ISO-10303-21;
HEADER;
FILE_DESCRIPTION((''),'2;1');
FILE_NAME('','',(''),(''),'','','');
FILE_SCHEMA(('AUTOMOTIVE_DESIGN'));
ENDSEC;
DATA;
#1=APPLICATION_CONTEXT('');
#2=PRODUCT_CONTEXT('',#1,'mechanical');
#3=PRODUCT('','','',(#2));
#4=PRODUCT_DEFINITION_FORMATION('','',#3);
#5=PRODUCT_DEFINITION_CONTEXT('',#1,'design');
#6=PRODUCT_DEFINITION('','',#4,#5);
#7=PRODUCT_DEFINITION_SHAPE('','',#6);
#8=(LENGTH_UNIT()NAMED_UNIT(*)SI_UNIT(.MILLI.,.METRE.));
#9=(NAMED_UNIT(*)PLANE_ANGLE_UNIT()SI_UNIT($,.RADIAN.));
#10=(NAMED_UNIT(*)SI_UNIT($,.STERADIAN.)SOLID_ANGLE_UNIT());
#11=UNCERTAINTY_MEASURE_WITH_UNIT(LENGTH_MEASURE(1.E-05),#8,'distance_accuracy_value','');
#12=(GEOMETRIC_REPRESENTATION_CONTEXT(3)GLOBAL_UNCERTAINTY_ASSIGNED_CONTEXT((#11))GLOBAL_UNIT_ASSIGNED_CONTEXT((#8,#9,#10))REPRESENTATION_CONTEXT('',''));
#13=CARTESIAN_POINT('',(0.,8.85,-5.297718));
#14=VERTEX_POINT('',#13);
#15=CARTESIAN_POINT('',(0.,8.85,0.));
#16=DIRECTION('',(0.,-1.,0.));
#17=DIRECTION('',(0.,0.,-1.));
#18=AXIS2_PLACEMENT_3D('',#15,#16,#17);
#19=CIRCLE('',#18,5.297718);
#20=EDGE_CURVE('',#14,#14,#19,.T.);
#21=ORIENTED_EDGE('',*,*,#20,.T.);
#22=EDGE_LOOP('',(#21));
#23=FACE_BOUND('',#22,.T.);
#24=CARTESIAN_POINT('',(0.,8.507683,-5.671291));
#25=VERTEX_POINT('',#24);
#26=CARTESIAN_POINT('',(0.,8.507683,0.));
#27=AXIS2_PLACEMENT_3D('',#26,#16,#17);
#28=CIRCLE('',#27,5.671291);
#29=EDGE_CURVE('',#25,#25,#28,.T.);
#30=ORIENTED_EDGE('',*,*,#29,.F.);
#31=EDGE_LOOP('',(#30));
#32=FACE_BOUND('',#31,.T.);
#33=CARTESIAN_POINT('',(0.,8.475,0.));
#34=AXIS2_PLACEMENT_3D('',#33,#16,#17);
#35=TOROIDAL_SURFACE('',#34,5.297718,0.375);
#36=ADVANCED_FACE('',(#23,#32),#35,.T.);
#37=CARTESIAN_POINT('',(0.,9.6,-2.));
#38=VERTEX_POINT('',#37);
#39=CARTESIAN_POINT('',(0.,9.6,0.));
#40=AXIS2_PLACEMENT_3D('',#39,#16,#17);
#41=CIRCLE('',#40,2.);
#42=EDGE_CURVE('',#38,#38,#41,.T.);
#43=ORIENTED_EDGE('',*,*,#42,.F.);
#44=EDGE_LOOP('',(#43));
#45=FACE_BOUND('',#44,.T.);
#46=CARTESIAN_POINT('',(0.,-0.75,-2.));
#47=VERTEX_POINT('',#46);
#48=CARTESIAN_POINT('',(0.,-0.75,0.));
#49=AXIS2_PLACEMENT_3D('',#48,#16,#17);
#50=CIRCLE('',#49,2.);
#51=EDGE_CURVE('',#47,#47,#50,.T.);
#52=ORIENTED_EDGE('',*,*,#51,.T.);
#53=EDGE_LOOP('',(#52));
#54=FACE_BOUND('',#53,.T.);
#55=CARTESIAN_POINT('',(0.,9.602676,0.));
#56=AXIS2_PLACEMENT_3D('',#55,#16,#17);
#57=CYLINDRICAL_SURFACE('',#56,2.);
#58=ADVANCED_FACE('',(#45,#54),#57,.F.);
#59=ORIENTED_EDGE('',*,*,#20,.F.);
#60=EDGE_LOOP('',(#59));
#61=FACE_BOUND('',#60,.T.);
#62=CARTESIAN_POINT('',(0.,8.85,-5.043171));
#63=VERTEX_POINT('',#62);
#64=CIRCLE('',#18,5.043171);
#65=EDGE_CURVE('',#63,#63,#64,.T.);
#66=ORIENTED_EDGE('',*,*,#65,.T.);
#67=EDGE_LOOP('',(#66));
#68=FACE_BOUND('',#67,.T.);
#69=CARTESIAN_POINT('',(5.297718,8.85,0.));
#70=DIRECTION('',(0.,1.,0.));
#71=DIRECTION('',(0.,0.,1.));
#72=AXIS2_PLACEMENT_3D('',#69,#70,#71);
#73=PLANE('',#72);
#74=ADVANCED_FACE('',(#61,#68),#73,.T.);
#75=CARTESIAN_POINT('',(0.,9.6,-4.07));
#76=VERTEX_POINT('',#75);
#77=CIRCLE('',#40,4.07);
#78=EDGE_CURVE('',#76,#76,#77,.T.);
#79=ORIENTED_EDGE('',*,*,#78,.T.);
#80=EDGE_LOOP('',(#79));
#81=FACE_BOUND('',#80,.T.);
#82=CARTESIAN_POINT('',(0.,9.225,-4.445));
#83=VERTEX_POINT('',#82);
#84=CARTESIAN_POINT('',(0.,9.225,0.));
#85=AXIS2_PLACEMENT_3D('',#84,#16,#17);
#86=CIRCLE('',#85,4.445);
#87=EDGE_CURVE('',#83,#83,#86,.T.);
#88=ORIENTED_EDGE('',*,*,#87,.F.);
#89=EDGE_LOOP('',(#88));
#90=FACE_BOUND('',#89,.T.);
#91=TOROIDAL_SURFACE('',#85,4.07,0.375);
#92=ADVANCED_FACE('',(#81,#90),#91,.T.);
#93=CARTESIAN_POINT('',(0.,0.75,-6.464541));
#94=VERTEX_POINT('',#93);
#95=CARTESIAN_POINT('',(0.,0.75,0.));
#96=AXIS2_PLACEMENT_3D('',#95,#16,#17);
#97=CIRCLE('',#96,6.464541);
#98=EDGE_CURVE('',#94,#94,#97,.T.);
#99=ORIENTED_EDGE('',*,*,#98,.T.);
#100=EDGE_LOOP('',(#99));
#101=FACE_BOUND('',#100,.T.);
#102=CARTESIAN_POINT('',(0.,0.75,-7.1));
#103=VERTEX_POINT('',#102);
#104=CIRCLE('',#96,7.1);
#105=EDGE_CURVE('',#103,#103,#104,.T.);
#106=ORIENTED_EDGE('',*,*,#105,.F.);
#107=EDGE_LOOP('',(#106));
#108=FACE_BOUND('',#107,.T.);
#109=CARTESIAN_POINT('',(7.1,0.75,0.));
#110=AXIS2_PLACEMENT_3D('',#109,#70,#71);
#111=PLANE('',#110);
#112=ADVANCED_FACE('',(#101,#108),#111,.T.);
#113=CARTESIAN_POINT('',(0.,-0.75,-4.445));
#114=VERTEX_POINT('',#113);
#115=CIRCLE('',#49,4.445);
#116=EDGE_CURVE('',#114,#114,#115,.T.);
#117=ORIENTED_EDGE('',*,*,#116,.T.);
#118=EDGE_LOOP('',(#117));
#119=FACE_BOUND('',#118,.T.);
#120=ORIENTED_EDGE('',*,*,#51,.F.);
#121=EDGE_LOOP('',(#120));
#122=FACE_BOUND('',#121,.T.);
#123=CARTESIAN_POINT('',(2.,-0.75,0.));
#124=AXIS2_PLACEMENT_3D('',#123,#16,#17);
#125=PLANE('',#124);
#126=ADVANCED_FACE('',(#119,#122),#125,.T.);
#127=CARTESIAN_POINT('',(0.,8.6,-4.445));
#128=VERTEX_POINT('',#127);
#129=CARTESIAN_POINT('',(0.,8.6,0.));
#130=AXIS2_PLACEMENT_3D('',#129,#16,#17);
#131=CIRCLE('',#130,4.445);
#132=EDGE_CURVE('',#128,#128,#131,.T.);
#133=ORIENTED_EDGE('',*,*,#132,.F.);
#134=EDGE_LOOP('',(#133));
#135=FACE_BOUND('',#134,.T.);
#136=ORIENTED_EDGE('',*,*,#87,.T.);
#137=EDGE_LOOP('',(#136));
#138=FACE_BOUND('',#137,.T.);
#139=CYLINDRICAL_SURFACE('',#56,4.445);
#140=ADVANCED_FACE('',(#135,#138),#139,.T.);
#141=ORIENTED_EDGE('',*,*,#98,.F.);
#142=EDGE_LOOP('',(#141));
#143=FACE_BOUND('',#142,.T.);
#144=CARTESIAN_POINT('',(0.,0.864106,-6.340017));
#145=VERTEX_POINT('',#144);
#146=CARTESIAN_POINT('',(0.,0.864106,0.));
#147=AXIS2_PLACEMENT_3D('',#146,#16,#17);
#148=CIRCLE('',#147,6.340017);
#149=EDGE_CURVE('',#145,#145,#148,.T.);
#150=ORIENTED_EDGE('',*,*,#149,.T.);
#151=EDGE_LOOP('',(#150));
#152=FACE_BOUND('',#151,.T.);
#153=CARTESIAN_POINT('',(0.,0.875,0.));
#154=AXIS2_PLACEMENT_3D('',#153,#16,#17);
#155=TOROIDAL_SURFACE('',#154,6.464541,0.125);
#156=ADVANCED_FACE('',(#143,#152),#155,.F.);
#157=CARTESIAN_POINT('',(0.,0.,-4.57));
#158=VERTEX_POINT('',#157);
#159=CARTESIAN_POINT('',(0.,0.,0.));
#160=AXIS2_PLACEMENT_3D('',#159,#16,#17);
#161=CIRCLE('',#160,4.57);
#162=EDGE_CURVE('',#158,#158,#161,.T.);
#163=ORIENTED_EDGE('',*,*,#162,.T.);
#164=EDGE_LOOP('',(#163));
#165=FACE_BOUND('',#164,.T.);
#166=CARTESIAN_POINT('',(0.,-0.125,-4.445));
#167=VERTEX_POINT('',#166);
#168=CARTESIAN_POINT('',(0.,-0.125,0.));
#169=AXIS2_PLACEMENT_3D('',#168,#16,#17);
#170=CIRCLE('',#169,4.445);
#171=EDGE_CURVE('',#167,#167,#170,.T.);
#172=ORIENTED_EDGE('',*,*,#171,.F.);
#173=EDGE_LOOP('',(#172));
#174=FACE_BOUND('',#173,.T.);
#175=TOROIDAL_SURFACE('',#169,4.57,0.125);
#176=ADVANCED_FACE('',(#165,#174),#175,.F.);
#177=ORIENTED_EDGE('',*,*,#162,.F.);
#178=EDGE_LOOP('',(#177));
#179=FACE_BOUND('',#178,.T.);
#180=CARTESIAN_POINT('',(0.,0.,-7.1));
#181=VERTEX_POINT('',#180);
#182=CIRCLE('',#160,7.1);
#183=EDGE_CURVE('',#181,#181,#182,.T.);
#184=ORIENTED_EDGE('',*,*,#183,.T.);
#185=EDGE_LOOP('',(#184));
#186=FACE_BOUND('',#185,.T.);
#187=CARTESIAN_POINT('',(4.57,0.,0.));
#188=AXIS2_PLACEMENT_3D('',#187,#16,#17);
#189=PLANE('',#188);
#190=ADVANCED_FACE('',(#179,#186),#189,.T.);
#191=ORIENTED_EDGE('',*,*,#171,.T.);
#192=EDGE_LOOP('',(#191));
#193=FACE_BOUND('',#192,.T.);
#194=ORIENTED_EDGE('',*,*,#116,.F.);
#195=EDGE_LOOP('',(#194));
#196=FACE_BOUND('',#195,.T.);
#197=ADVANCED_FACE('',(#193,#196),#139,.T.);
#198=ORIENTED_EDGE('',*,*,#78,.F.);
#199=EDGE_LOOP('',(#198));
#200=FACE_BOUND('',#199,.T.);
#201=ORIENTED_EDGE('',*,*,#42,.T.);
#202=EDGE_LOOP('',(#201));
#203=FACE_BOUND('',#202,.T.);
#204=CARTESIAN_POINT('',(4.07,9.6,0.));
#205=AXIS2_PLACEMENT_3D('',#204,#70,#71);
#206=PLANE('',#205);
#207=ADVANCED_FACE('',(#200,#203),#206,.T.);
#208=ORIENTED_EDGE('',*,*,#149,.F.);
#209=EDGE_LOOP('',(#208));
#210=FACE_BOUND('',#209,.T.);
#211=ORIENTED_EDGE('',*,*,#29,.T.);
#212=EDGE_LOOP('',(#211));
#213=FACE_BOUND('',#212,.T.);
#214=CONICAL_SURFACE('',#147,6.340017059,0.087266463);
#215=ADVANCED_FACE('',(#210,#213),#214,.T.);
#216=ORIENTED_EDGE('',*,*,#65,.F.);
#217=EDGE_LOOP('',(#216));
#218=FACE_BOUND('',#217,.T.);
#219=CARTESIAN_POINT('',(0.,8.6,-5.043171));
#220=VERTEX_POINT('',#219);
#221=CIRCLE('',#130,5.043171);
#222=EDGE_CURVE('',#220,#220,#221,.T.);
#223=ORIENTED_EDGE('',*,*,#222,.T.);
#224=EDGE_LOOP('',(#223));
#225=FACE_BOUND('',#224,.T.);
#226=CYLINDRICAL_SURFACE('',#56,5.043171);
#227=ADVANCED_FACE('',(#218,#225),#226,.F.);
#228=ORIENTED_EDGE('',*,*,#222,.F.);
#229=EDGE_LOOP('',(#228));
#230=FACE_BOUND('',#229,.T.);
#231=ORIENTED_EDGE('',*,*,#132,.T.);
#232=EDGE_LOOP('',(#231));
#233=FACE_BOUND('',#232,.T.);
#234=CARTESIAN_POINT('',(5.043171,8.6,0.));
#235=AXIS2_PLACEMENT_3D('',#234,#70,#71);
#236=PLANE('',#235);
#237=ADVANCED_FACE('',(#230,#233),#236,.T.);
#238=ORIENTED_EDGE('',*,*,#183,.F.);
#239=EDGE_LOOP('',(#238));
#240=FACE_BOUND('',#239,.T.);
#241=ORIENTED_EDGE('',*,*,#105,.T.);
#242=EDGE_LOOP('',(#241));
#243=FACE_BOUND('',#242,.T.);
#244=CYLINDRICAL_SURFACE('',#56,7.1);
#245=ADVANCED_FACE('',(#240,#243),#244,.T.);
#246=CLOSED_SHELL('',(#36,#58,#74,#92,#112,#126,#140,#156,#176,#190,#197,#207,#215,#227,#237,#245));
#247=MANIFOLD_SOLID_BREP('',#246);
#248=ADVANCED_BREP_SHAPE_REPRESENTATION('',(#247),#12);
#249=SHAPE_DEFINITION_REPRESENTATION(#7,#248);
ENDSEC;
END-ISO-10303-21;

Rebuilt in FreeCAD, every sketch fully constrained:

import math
import FreeCAD as App
import Part
import Sketcher

V = App.Vector
Q = App.Units.Quantity

doc = App.newDocument("Part")
body = doc.addObject("PartDesign::Body", "Body")

# Sketch on XY plane
sketch1 = doc.addObject("Sketcher::SketchObject", "Sketch")
body.addObject(sketch1)
sketch1.AttachmentSupport = (doc.XY_Plane, [""])
sketch1.MapMode = "FlatFace"
sketch1.addGeometry([
    Part.LineSegment(V(4.07, 9.6, 0), V(2, 9.6, 0)),  # 0
    Part.LineSegment(V(2, 9.6, 0), V(2, -0.75, 0)),  # 1
    Part.LineSegment(V(2, -0.75, 0), V(4.45, -0.75, 0)),  # 2
    Part.LineSegment(V(4.45, -0.75, 0), V(4.45, -0.12, 0)),  # 3
    Part.ArcOfCircle(Part.Circle(V(4.57, -0.12, 0), V(0, 0, 1), 0.12), math.radians(90), math.radians(180)),  # 4
    Part.LineSegment(V(4.57, 0, 0), V(7.1, 0, 0)),  # 5
    Part.LineSegment(V(7.1, 0, 0), V(7.1, 0.75, 0)),  # 6
    Part.LineSegment(V(7.1, 0.75, 0), V(6.46, 0.75, 0)),  # 7
    Part.ArcOfCircle(Part.Circle(V(6.46, 0.88, 0), V(0, 0, 1), 0.13), math.radians(-175), math.radians(-90)),  # 8
    Part.LineSegment(V(6.34, 0.86, 0), V(5.67, 8.51, 0)),  # 9
    Part.ArcOfCircle(Part.Circle(V(5.3, 8.47, 0), V(0, 0, 1), 0.38), math.radians(5), math.radians(90)),  # 10
    Part.LineSegment(V(5.3, 8.85, 0), V(5.04, 8.85, 0)),  # 11
    Part.LineSegment(V(5.04, 8.85, 0), V(5.04, 8.6, 0)),  # 12
    Part.LineSegment(V(5.04, 8.6, 0), V(4.45, 8.6, 0)),  # 13
    Part.LineSegment(V(4.45, 8.6, 0), V(4.45, 9.22, 0)),  # 14
    Part.ArcOfCircle(Part.Circle(V(4.07, 9.22, 0), V(0, 0, 1), 0.38), math.radians(0), math.radians(90)),  # 15
], False)
sketch1.addConstraint([
    Sketcher.Constraint("Coincident", 0, 2, 1, 1),
    Sketcher.Constraint("Coincident", 1, 2, 2, 1),
    Sketcher.Constraint("Coincident", 2, 2, 3, 1),
    Sketcher.Constraint("Tangent", 3, 2, 4, 2),
    Sketcher.Constraint("Tangent", 4, 1, 5, 1),
    Sketcher.Constraint("Coincident", 5, 2, 6, 1),
    Sketcher.Constraint("Coincident", 6, 2, 7, 1),
    Sketcher.Constraint("Tangent", 7, 2, 8, 2),
    Sketcher.Constraint("Tangent", 8, 1, 9, 1),
    Sketcher.Constraint("Tangent", 9, 2, 10, 1),
    Sketcher.Constraint("Tangent", 10, 2, 11, 1),
    Sketcher.Constraint("Coincident", 11, 2, 12, 1),
    Sketcher.Constraint("Coincident", 12, 2, 13, 1),
    Sketcher.Constraint("Coincident", 13, 2, 14, 1),
    Sketcher.Constraint("Tangent", 14, 2, 15, 1),
    Sketcher.Constraint("Tangent", 15, 2, 0, 1),
    Sketcher.Constraint("Horizontal", 0),
    Sketcher.Constraint("Vertical", 1),
    Sketcher.Constraint("Horizontal", 2),
    Sketcher.Constraint("Vertical", 3),
    Sketcher.Constraint("Horizontal", 5),
    Sketcher.Constraint("Vertical", 6),
    Sketcher.Constraint("Horizontal", 7),
    Sketcher.Constraint("Horizontal", 11),
    Sketcher.Constraint("Vertical", 12),
    Sketcher.Constraint("Horizontal", 13),
    Sketcher.Constraint("Vertical", 14),
    Sketcher.Constraint("Equal", 4, 8),
    Sketcher.Constraint("Equal", 10, 15),
    Sketcher.Constraint("PointOnObject", 4, 1, -1),
    Sketcher.Constraint("Vertical", 3, 2, 13, 2),
    Sketcher.Constraint("Equal", 3, 14),
    Sketcher.Constraint("Angle", 9, Q("95 deg")),
    Sketcher.Constraint("DistanceX", -1, 1, 0, 2, 2.0),
    Sketcher.Constraint("Radius", 4, 0.125),
    Sketcher.Constraint("Radius", 10, 0.375),
    Sketcher.Constraint("DistanceY", 4, 3, 8, 3, 1.0),
    Sketcher.Constraint("DistanceY", 13, 2, 15, 2, 1.0),
    Sketcher.Constraint("DistanceX", 0, 2, 0, 1, 2.07),
    Sketcher.Constraint("DistanceX", 5, 1, 5, 2, 2.53),
    Sketcher.Constraint("DistanceY", 1, 2, 1, 1, 10.35),
    Sketcher.Constraint("DistanceY", 12, 2, 12, 1, 0.25),
    Sketcher.Constraint("DistanceX", 7, 2, 7, 1, 0.635459),
    Sketcher.Constraint("DistanceX", 13, 2, 13, 1, 0.598171),
])
revolution = doc.addObject("PartDesign::Revolution", "Revolution")
body.addObject(revolution)
revolution.Profile = sketch1
revolution.ReferenceAxis = (sketch1, ["V_Axis"])
revolution.Angle = 360

doc.recompute()
